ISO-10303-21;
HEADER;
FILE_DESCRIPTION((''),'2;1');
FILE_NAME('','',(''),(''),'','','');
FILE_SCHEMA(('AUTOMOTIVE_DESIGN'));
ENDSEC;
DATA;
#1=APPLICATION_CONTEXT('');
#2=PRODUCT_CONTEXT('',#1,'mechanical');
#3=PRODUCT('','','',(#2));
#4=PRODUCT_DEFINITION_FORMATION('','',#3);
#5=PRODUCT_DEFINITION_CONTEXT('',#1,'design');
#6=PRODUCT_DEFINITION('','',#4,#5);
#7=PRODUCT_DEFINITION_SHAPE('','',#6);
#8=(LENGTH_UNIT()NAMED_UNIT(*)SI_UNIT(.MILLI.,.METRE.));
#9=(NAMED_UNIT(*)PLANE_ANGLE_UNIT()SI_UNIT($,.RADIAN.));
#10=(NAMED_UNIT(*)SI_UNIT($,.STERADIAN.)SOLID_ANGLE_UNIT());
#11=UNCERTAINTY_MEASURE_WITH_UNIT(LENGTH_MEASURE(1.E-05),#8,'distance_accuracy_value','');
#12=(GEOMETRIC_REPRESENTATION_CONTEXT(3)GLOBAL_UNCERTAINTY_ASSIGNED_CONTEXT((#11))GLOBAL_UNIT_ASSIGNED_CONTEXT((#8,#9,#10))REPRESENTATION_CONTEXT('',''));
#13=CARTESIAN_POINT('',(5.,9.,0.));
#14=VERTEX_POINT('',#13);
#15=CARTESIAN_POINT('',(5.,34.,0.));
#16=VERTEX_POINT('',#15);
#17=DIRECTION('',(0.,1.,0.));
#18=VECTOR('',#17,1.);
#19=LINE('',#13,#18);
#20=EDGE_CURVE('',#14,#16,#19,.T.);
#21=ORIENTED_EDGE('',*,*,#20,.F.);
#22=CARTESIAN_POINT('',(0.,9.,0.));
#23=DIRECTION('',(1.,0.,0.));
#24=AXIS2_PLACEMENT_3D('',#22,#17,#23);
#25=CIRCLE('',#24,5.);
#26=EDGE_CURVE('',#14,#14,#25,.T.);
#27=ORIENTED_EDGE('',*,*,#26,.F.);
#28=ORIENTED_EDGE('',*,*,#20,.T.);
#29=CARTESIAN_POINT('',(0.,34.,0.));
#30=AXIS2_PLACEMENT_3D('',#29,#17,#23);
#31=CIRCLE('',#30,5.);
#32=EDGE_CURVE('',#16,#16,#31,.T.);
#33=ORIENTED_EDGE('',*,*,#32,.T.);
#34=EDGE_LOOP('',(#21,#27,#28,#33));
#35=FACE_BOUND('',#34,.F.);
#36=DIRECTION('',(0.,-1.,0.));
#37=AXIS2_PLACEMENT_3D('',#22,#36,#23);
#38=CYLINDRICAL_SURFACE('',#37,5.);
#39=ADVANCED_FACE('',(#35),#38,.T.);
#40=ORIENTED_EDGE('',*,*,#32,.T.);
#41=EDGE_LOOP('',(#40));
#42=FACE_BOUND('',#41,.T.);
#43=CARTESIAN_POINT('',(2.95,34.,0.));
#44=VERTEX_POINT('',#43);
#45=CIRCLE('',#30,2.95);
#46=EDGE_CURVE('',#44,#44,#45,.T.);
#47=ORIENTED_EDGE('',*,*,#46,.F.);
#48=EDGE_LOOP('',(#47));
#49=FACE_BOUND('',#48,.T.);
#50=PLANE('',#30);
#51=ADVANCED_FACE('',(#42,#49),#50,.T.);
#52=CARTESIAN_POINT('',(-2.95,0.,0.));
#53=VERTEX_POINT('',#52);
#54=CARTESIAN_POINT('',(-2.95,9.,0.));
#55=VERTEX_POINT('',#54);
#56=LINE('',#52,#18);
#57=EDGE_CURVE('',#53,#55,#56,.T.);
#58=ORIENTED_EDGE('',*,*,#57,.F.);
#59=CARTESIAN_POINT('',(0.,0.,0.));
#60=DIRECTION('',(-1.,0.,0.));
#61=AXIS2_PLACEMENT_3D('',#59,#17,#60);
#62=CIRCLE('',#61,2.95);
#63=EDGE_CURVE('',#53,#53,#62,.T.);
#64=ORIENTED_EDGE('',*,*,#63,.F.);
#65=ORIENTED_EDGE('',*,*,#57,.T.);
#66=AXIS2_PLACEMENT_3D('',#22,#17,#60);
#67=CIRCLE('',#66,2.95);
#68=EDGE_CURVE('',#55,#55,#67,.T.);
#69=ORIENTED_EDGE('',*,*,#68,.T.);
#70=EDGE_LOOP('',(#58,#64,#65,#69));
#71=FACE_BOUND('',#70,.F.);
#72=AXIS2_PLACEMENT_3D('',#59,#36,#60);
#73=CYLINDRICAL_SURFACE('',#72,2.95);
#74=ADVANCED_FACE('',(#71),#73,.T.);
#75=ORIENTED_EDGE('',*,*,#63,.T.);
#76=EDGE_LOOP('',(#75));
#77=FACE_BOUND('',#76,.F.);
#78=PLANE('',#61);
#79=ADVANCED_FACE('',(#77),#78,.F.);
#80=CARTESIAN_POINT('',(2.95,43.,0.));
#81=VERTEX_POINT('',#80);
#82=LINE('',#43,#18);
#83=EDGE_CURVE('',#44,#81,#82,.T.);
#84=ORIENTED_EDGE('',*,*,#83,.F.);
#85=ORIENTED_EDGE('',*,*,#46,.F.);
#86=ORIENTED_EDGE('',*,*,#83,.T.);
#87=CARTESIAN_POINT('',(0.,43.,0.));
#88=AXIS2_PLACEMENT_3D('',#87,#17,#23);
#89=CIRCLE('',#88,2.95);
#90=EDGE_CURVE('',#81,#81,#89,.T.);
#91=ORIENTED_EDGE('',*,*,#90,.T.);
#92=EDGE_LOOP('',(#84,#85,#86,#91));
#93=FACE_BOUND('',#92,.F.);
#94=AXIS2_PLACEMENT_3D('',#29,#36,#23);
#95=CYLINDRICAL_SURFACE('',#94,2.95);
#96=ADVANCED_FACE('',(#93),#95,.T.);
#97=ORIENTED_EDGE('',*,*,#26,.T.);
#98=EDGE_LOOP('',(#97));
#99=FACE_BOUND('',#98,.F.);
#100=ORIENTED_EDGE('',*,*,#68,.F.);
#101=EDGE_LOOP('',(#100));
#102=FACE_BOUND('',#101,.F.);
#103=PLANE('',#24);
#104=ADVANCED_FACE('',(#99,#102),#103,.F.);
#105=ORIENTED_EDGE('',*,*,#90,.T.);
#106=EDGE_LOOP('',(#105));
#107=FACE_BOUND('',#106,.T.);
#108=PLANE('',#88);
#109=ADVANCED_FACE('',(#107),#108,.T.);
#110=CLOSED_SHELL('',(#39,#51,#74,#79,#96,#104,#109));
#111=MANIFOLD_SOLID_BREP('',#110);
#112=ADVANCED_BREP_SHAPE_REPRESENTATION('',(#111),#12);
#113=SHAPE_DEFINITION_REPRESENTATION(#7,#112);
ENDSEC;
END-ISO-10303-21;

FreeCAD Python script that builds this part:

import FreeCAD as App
import Part
import Sketcher

V = App.Vector

doc = App.newDocument("Part")
params = doc.addObject("Spreadsheet::Sheet", "Params")
for row, (alias, value) in enumerate([
    ("sketch1_diameter", "5.9 mm"),
    ("pad1_length", "9 mm"),
    ("sketch2_diameter", "10 mm"),
    ("pad2_length", "25 mm"),
    ("sketch3_diameter", "5.9 mm"),
    ("pad3_length", "9 mm"),
], start=1):
    params.set(f"A{row}", alias)
    params.set(f"B{row}", "=" + value)
    params.setAlias(f"B{row}", alias)

body = doc.addObject("PartDesign::Body", "Body")

# Sketch on XZ plane
sketch1 = body.newObject("Sketcher::SketchObject", "Sketch")
sketch1.AttachmentSupport = (doc.getObject("XZ_Plane"), [""])
sketch1.MapMode = "FlatFace"
sketch1.addGeometry(Part.Circle(V(0, 0, 0), V(0, 0, 1), 3), False)
sketch1.addConstraint([
    Sketcher.Constraint("Coincident", 0, 3, -1, 1),
    Sketcher.Constraint("Diameter", 0, 5.9),
])
sketch1.setExpression("Constraints[1]", "Params.sketch1_diameter")
pad1 = body.newObject("PartDesign::Pad", "Pad")
pad1.Profile = sketch1
pad1.setExpression("Length", "Params.pad1_length")
pad1.Reversed = True

# Sketch on XZ plane
sketch2 = body.newObject("Sketcher::SketchObject", "Sketch001")
sketch2.AttachmentSupport = (doc.getObject("XZ_Plane"), [""])
sketch2.MapMode = "FlatFace"
sketch2.AttachmentOffset = App.Placement(V(0, 0, -9), App.Rotation())
sketch2.addGeometry(Part.Circle(V(0, 0, 0), V(0, 0, 1), 5), False)
sketch2.addConstraint([
    Sketcher.Constraint("Coincident", 0, 3, -1, 1),
    Sketcher.Constraint("Diameter", 0, 10.0),
])
sketch2.setExpression("Constraints[1]", "Params.sketch2_diameter")
pad2 = body.newObject("PartDesign::Pad", "Pad001")
pad2.Profile = sketch2
pad2.setExpression("Length", "Params.pad2_length")
pad2.Reversed = True

# Sketch on XZ plane
sketch3 = body.newObject("Sketcher::SketchObject", "Sketch002")
sketch3.AttachmentSupport = (doc.getObject("XZ_Plane"), [""])
sketch3.MapMode = "FlatFace"
sketch3.AttachmentOffset = App.Placement(V(0, 0, -34), App.Rotation())
sketch3.addGeometry(Part.Circle(V(0, 0, 0), V(0, 0, 1), 3), False)
sketch3.addConstraint([
    Sketcher.Constraint("Coincident", 0, 3, -1, 1),
    Sketcher.Constraint("Diameter", 0, 5.9),
])
sketch3.setExpression("Constraints[1]", "Params.sketch3_diameter")
pad3 = body.newObject("PartDesign::Pad", "Pad002")
pad3.Profile = sketch3
pad3.setExpression("Length", "Params.pad3_length")
pad3.Reversed = True

doc.recompute()
